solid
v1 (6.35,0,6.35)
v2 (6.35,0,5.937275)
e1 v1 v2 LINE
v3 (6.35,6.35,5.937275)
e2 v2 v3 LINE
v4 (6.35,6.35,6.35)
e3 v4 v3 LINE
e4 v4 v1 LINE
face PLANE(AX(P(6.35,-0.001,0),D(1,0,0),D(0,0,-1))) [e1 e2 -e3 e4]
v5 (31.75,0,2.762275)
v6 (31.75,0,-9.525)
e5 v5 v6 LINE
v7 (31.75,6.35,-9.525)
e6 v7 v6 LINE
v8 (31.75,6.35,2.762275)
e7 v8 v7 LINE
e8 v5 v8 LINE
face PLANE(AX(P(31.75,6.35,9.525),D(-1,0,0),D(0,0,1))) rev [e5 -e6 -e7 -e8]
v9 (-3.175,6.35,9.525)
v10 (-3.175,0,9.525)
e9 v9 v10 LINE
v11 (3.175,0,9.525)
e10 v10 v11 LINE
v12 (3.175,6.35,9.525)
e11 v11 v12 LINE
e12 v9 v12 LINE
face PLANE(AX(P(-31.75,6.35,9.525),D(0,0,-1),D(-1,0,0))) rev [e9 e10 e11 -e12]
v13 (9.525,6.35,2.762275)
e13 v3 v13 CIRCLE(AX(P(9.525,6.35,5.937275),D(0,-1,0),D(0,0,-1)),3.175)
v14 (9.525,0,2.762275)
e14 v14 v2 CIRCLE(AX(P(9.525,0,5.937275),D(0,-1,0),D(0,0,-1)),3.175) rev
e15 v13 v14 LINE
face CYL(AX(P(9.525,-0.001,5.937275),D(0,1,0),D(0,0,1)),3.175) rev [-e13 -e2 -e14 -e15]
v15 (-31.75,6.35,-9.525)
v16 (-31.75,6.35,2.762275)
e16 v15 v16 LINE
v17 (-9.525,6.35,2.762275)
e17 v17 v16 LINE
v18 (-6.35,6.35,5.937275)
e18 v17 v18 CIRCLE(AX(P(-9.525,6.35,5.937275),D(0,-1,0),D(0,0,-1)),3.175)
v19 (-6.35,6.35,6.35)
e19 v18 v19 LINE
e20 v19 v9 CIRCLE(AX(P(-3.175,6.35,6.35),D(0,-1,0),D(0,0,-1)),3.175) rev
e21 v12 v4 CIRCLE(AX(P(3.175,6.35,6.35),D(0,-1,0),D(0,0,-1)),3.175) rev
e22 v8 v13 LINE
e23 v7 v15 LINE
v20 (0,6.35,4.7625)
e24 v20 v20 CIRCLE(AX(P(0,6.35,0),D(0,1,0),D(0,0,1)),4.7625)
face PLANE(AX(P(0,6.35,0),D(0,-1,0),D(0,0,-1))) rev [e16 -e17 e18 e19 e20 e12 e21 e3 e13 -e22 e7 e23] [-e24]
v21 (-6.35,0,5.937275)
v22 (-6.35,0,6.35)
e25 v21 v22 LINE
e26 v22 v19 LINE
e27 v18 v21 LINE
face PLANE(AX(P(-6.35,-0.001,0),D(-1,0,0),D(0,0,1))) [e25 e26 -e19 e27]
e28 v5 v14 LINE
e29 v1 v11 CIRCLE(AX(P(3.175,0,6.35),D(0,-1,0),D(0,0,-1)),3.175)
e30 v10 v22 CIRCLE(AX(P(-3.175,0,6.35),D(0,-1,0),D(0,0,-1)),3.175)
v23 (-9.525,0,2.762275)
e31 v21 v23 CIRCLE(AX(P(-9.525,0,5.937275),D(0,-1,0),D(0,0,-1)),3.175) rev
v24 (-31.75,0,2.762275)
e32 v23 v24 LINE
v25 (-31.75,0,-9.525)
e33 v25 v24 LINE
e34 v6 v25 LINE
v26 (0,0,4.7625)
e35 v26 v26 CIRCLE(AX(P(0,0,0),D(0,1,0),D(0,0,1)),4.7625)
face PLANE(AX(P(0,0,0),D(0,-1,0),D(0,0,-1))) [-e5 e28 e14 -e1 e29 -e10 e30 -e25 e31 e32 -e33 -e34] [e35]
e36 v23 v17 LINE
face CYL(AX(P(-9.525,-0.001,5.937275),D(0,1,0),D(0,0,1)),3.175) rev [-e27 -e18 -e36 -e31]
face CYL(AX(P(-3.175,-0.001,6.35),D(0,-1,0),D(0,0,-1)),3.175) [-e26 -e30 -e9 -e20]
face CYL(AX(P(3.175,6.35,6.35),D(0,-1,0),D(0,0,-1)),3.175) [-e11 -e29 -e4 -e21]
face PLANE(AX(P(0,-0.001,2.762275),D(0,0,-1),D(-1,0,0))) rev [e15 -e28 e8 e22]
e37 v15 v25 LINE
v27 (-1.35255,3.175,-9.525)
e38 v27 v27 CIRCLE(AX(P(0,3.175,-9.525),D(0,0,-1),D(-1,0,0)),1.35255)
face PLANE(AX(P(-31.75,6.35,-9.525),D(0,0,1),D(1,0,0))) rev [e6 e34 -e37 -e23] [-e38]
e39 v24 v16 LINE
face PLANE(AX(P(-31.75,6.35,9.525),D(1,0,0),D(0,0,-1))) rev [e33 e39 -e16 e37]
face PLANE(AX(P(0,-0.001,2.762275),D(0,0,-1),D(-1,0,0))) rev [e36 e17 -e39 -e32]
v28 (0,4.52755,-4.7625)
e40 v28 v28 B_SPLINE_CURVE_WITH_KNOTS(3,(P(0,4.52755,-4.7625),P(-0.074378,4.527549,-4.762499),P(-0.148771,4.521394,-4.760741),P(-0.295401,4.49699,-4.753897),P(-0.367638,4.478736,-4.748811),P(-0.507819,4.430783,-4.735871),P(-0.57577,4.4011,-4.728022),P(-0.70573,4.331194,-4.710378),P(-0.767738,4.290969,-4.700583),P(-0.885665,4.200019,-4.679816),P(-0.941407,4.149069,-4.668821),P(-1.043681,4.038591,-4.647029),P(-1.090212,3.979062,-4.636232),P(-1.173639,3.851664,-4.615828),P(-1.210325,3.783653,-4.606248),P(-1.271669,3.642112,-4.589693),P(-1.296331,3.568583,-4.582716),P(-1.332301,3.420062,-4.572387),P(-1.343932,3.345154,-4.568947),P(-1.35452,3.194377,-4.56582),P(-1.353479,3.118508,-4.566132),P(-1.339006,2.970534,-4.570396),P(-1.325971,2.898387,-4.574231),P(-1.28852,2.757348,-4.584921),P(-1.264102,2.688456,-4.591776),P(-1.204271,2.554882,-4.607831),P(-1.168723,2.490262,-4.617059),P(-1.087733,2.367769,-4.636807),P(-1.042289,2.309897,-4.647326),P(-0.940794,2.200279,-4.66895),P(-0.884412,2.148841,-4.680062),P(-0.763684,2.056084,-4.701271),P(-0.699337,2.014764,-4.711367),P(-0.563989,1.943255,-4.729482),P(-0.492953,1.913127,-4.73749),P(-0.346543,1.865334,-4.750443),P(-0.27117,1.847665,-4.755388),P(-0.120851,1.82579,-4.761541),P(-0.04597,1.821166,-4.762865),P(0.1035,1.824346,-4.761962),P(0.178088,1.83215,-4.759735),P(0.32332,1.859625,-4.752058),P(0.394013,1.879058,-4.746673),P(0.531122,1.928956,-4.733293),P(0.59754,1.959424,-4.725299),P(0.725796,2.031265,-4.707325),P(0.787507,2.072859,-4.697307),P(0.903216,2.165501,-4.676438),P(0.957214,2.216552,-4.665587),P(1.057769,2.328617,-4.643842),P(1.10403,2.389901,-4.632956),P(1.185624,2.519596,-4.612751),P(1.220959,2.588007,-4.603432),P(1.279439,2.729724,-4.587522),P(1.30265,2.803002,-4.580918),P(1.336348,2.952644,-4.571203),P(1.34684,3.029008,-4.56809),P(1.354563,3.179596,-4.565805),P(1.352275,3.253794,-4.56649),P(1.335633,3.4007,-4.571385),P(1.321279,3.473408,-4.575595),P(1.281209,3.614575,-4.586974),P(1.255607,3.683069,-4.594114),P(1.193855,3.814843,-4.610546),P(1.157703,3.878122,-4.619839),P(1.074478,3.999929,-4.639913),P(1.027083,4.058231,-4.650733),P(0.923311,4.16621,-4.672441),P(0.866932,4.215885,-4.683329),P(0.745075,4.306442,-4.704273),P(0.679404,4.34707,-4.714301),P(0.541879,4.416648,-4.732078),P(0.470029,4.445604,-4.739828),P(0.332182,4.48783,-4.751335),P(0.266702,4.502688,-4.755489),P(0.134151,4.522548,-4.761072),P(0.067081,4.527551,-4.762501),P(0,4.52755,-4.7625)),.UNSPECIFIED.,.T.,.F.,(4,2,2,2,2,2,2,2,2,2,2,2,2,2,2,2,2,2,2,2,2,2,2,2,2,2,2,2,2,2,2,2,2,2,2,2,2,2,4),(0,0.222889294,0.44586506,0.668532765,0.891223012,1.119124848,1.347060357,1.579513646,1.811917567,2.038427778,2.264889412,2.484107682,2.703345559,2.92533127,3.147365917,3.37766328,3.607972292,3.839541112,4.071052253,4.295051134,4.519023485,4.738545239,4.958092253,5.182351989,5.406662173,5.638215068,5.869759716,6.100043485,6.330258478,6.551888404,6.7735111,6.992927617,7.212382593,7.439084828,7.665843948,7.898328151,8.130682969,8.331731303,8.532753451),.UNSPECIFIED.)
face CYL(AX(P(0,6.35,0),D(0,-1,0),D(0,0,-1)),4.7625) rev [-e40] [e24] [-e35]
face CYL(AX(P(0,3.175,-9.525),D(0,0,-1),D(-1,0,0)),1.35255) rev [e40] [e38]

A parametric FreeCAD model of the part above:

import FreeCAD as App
import Part
import Sketcher
Q = App.Units.Quantity


def edges_at(feature, points):
    """Names of the edges that pass closest to the given points."""
    edges = feature.Shape.Edges
    near = lambda p: min(range(len(edges)), key=lambda i: edges[i].distToShape(Part.Vertex(*p))[0])
    return sorted({f"Edge{near(p) + 1}" for p in points})

doc = App.newDocument("Part")
body = doc.addObject("PartDesign::Body", "Body")

sketch1 = doc.addObject("Sketcher::SketchObject", "Sketch")
body.addObject(sketch1)
sketch1.AttachmentSupport = (doc.XZ_Plane, [""])
sketch1.MapMode = "FlatFace"
sketch1.addGeometry(Part.LineSegment(App.Vector(-31.8, -9.5, 0), App.Vector(-31.8, 9.5, 0)), False)
sketch1.addGeometry(Part.LineSegment(App.Vector(-31.8, 9.5, 0), App.Vector(31.8, 9.5, 0)), False)
sketch1.addGeometry(Part.LineSegment(App.Vector(31.8, 9.5, 0), App.Vector(31.8, -9.5, 0)), False)
sketch1.addGeometry(Part.LineSegment(App.Vector(31.8, -9.5, 0), App.Vector(-31.8, -9.5, 0)), False)
sketch1.addGeometry(Part.Circle(App.Vector(0, 0, 0), App.Vector(0, 0, 1), 4.8), False)
sketch1.addConstraint(Sketcher.Constraint("Coincident", 0, 2, 1, 1))
sketch1.addConstraint(Sketcher.Constraint("Coincident", 1, 2, 2, 1))
sketch1.addConstraint(Sketcher.Constraint("Coincident", 2, 2, 3, 1))
sketch1.addConstraint(Sketcher.Constraint("Coincident", 3, 2, 0, 1))
sketch1.addConstraint(Sketcher.Constraint("Vertical", 0))
sketch1.addConstraint(Sketcher.Constraint("Horizontal", 1))
sketch1.addConstraint(Sketcher.Constraint("Vertical", 2))
sketch1.addConstraint(Sketcher.Constraint("Horizontal", 3))
sketch1.addConstraint(Sketcher.Constraint("Coincident", 4, 3, -1, 1))
sketch1.addConstraint(Sketcher.Constraint("Symmetric", 0, 2, 2, 2, -1, 1))
sketch1.addConstraint(Sketcher.Constraint("Diameter", 4, Q("0.375 in")))
sketch1.addConstraint(Sketcher.Constraint("DistanceX", 1, 1, 1, 2, Q("2.5 in")))
sketch1.addConstraint(Sketcher.Constraint("DistanceY", 0, 1, 0, 2, Q("0.75 in")))
pad1 = doc.addObject("PartDesign::Pad", "Pad")
body.addObject(pad1)
pad1.Profile = sketch1
pad1.Length = Q("0.25 in")
pad1.Reversed = True

sketch2 = doc.addObject("Sketcher::SketchObject", "Sketch001")
body.addObject(sketch2)
sketch2.AttachmentSupport = (doc.XY_Plane, [""])
sketch2.MapMode = "FlatFace"
sketch2.AttachmentOffset = App.Placement(App.Vector(0, 0, -0.375 * 25.4), App.Rotation())
sketch2.addGeometry(Part.Circle(App.Vector(0, 3.2, 0), App.Vector(0, 0, 1), 1.4), False)
sketch2.addConstraint(Sketcher.Constraint("PointOnObject", 0, 3, -2))
sketch2.addConstraint(Sketcher.Constraint("Diameter", 0, Q("0.1065 in")))
sketch2.addConstraint(Sketcher.Constraint("DistanceY", -1, 1, 0, 3, Q("0.125 in")))
pocket1 = doc.addObject("PartDesign::Pocket", "Pocket")
body.addObject(pocket1)
pocket1.Profile = sketch2
pocket1.Length = 4.958599
pocket1.Reversed = True

sketch3 = doc.addObject("Sketcher::SketchObject", "Sketch002")
body.addObject(sketch3)
sketch3.AttachmentSupport = (doc.XZ_Plane, [""])
sketch3.MapMode = "FlatFace"
sketch3.AttachmentOffset = App.Placement(App.Vector(0, 0, -0.25 * 25.4), App.Rotation())
sketch3.addGeometry(Part.LineSegment(App.Vector(6, 3, 0), App.Vector(6, 10, 0)), False)
sketch3.addGeometry(Part.LineSegment(App.Vector(6, 10, 0), App.Vector(32, 10, 0)), False)
sketch3.addGeometry(Part.LineSegment(App.Vector(32, 10, 0), App.Vector(32, 3, 0)), False)
sketch3.addGeometry(Part.LineSegment(App.Vector(32, 3, 0), App.Vector(6, 3, 0)), False)
sketch3.addConstraint(Sketcher.Constraint("Coincident", 0, 2, 1, 1))
sketch3.addConstraint(Sketcher.Constraint("Coincident", 1, 2, 2, 1))
sketch3.addConstraint(Sketcher.Constraint("Coincident", 2, 2, 3, 1))
sketch3.addConstraint(Sketcher.Constraint("Coincident", 3, 2, 0, 1))
sketch3.addConstraint(Sketcher.Constraint("Vertical", 0))
sketch3.addConstraint(Sketcher.Constraint("Horizontal", 1))
sketch3.addConstraint(Sketcher.Constraint("Vertical", 2))
sketch3.addConstraint(Sketcher.Constraint("Horizontal", 3))
sketch3.addConstraint(Sketcher.Constraint("DistanceX", 1, 1, 1, 2, Q("1 in")))
sketch3.addConstraint(Sketcher.Constraint("DistanceX", -1, 1, 0, 2, Q("0.25 in")))
sketch3.addConstraint(Sketcher.Constraint("DistanceY", -1, 1, 0, 2, Q("0.375 in")))
sketch3.addConstraint(Sketcher.Constraint("DistanceY", 0, 1, 0, 2, 6.762725))
pocket2 = doc.addObject("PartDesign::Pocket", "Pocket001")
body.addObject(pocket2)
pocket2.Profile = sketch3
pocket2.Type = "UpToFirst"
pocket2.Reversed = True

sketch4 = doc.addObject("Sketcher::SketchObject", "Sketch003")
body.addObject(sketch4)
sketch4.AttachmentSupport = (doc.XZ_Plane, [""])
sketch4.MapMode = "FlatFace"
sketch4.AttachmentOffset = App.Placement(App.Vector(0, 0, -0.25 * 25.4), App.Rotation())
sketch4.addGeometry(Part.LineSegment(App.Vector(-32, 3, 0), App.Vector(-32, 10, 0)), False)
sketch4.addGeometry(Part.LineSegment(App.Vector(-32, 10, 0), App.Vector(-6, 10, 0)), False)
sketch4.addGeometry(Part.LineSegment(App.Vector(-6, 10, 0), App.Vector(-6, 3, 0)), False)
sketch4.addGeometry(Part.LineSegment(App.Vector(-6, 3, 0), App.Vector(-32, 3, 0)), False)
sketch4.addConstraint(Sketcher.Constraint("Coincident", 0, 2, 1, 1))
sketch4.addConstraint(Sketcher.Constraint("Coincident", 1, 2, 2, 1))
sketch4.addConstraint(Sketcher.Constraint("Coincident", 2, 2, 3, 1))
sketch4.addConstraint(Sketcher.Constraint("Coincident", 3, 2, 0, 1))
sketch4.addConstraint(Sketcher.Constraint("Vertical", 0))
sketch4.addConstraint(Sketcher.Constraint("Horizontal", 1))
sketch4.addConstraint(Sketcher.Constraint("Vertical", 2))
sketch4.addConstraint(Sketcher.Constraint("Horizontal", 3))
sketch4.addConstraint(Sketcher.Constraint("DistanceX", 1, 1, 1, 2, Q("1 in")))
sketch4.addConstraint(Sketcher.Constraint("DistanceX", 0, 2, -1, 1, Q("1.25 in")))
sketch4.addConstraint(Sketcher.Constraint("DistanceY", -1, 1, 0, 2, Q("0.375 in")))
sketch4.addConstraint(Sketcher.Constraint("DistanceY", 0, 1, 0, 2, 6.762725))
pocket3 = doc.addObject("PartDesign::Pocket", "Pocket002")
body.addObject(pocket3)
pocket3.Profile = sketch4
pocket3.Type = "UpToFirst"
pocket3.Reversed = True
doc.recompute()

fillet = doc.addObject("PartDesign::Fillet", "Fillet")
body.addObject(fillet)
fillet.Base = (pocket3, edges_at(pocket3, [
    (-6.35, 3.175, 2.762),
    (-6.35, 3.175, 9.525),
    (6.35, 3.175, 9.525),
    (6.35, 3.175, 2.762),
]))
fillet.Radius = Q("0.125 in")

doc.recompute()
